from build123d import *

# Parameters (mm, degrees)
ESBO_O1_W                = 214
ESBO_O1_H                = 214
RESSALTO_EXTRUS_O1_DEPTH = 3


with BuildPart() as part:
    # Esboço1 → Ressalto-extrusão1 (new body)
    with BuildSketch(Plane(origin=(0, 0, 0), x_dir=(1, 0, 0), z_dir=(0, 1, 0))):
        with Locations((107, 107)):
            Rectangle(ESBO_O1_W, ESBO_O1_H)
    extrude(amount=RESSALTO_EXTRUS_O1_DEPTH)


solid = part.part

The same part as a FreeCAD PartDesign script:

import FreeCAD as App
import Part
import Sketcher
from FreeCAD import Vector


def add_polygon(sketch, points):
    """Adds a closed chain of lines whose ends are joined by coincident constraints."""
    first, n = sketch.GeometryCount, len(points)
    for a, b in zip(points, points[1:] + points[:1]):
        sketch.addGeometry(Part.LineSegment(App.Vector(*a, 0), App.Vector(*b, 0)), False)
    for i in range(n):
        sketch.addConstraint(Sketcher.Constraint("Coincident", first + i, 2, first + (i + 1) % n, 1))

doc = App.newDocument("Part")
params = doc.addObject("Spreadsheet::Sheet", "Params")
for row, (alias, value) in enumerate([
    ("sketch1_width", "214 mm"),
    ("pad1_length", "3 mm"),
], start=1):
    params.set(f"A{row}", alias)
    params.set(f"B{row}", "=" + value)
    params.setAlias(f"B{row}", alias)

body = doc.addObject("PartDesign::Body", "Body")

sketch1 = body.newObject("Sketcher::SketchObject", "Sketch")
sketch1.AttachmentSupport = (doc.getObject("XZ_Plane"), [""])
sketch1.MapMode = "FlatFace"
add_polygon(sketch1, [(0, -214), (0, 0), (214, 0), (214, -214)])
sketch1.addConstraint([
    Sketcher.Constraint("Vertical", 0),
    Sketcher.Constraint("Horizontal", 1),
    Sketcher.Constraint("Vertical", 2),
    Sketcher.Constraint("Horizontal", 3),
    Sketcher.Constraint("Coincident", 0, 2, -1, 1),
    Sketcher.Constraint("Equal", 3, 0),
    Sketcher.Constraint("DistanceX", 1, 1, 1, 2, 214.0),
])
sketch1.setExpression("Constraints[10]", "Params.sketch1_width")
pad1 = body.newObject("PartDesign::Pad", "Pad")
pad1.Profile = sketch1
pad1.setExpression("Length", "Params.pad1_length")
pad1.Reversed = True

doc.recompute()
